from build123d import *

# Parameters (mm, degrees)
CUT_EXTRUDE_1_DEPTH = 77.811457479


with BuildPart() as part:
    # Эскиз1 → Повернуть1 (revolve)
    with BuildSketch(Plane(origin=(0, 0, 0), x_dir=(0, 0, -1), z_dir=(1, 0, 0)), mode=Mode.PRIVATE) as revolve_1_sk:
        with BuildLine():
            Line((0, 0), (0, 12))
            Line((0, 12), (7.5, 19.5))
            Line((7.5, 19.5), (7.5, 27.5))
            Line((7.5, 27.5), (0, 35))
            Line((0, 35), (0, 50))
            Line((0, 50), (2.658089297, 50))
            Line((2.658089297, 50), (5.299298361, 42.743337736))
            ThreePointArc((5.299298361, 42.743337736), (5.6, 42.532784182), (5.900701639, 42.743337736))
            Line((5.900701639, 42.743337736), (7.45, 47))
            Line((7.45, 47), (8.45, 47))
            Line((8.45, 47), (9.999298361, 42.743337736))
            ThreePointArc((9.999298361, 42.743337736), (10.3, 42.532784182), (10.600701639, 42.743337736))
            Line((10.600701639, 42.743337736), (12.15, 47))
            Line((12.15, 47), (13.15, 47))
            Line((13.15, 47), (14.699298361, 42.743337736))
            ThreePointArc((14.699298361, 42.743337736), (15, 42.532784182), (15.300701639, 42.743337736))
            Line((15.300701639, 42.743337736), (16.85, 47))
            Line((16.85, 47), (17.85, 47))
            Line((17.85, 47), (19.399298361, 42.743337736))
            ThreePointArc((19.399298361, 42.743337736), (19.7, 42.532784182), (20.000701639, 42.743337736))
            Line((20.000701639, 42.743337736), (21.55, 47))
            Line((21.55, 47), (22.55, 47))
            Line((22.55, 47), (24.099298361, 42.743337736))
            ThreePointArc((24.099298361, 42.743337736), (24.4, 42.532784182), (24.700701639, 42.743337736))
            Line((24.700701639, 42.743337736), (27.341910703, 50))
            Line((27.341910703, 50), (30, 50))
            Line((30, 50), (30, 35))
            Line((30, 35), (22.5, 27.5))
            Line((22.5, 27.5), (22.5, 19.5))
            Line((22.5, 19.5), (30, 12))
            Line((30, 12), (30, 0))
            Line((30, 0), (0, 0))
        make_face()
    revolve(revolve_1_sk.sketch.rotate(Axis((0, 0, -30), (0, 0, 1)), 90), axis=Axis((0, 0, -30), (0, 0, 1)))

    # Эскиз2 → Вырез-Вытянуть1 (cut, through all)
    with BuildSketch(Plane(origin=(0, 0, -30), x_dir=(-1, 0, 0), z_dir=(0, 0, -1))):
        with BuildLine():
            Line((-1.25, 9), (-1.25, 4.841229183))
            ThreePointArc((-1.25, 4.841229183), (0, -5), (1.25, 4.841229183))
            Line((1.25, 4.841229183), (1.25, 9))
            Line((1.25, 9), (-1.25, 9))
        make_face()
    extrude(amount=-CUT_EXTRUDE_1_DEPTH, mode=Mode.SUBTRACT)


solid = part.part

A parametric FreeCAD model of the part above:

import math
import FreeCAD as App
import Part
import Sketcher
from FreeCAD import Vector
Q = App.Units.Quantity

doc = App.newDocument("Part")
body = doc.addObject("PartDesign::Body", "Body")

sketch1 = doc.addObject("Sketcher::SketchObject", "Sketch")
body.addObject(sketch1)
sketch1.AttachmentSupport = (doc.YZ_Plane, [""])
sketch1.MapMode = "FlatFace"
sketch1.addGeometry([
    Part.LineSegment(Vector(12, 0, 0), Vector(0, 0, 0)),
    Part.LineSegment(Vector(0, 0, 0), Vector(0, -30, 0)),
    Part.LineSegment(Vector(0, -30, 0), Vector(12, -30, 0)),
    Part.LineSegment(Vector(12, -30, 0), Vector(19.5, -22.5, 0)),
    Part.LineSegment(Vector(19.5, -22.5, 0), Vector(27.5, -22.5, 0)),
    Part.LineSegment(Vector(27.5, -22.5, 0), Vector(35, -30, 0)),
    Part.LineSegment(Vector(35, -30, 0), Vector(50, -30, 0)),
    Part.LineSegment(Vector(50, -30, 0), Vector(50, -27.34, 0)),
    Part.LineSegment(Vector(50, -27.34, 0), Vector(42.74, -24.7, 0)),
    Part.ArcOfCircle(Part.Circle(Vector(42.85, -24.4, 0), Vector(0, 0, 1), 0.32), math.radians(110), math.radians(250)),
    Part.LineSegment(Vector(42.74, -24.1, 0), Vector(47, -22.55, 0)),
    Part.LineSegment(Vector(47, -22.55, 0), Vector(47, -21.55, 0)),
    Part.LineSegment(Vector(47, -21.55, 0), Vector(42.74, -20, 0)),
    Part.ArcOfCircle(Part.Circle(Vector(42.85, -19.7, 0), Vector(0, 0, 1), 0.32), math.radians(110), math.radians(250)),
    Part.LineSegment(Vector(42.74, -19.4, 0), Vector(47, -17.85, 0)),
    Part.LineSegment(Vector(47, -17.85, 0), Vector(47, -16.85, 0)),
    Part.LineSegment(Vector(47, -16.85, 0), Vector(42.74, -15.3, 0)),
    Part.ArcOfCircle(Part.Circle(Vector(42.85, -15, 0), Vector(0, 0, 1), 0.32), math.radians(110), math.radians(250)),
    Part.LineSegment(Vector(42.74, -14.7, 0), Vector(47, -13.15, 0)),
    Part.LineSegment(Vector(47, -13.15, 0), Vector(47, -12.15, 0)),
    Part.LineSegment(Vector(47, -12.15, 0), Vector(42.74, -10.6, 0)),
    Part.ArcOfCircle(Part.Circle(Vector(42.85, -10.3, 0), Vector(0, 0, 1), 0.32), math.radians(110), math.radians(250)),
    Part.LineSegment(Vector(42.74, -10, 0), Vector(47, -8.45, 0)),
    Part.LineSegment(Vector(47, -8.45, 0), Vector(47, -7.45, 0)),
    Part.LineSegment(Vector(47, -7.45, 0), Vector(42.74, -5.9, 0)),
    Part.ArcOfCircle(Part.Circle(Vector(42.85, -5.6, 0), Vector(0, 0, 1), 0.32), math.radians(110), math.radians(250)),
    Part.LineSegment(Vector(42.74, -5.3, 0), Vector(50, -2.66, 0)),
    Part.LineSegment(Vector(50, -2.66, 0), Vector(50, 0, 0)),
    Part.LineSegment(Vector(50, 0, 0), Vector(35, 0, 0)),
    Part.LineSegment(Vector(35, 0, 0), Vector(27.5, -7.5, 0)),
    Part.LineSegment(Vector(27.5, -7.5, 0), Vector(19.5, -7.5, 0)),
    Part.LineSegment(Vector(19.5, -7.5, 0), Vector(12, 0, 0)),
], False)
sketch1.addConstraint([
    Sketcher.Constraint("Coincident", 0, 2, 1, 1),
    Sketcher.Constraint("Coincident", 1, 2, 2, 1),
    Sketcher.Constraint("Coincident", 2, 2, 3, 1),
    Sketcher.Constraint("Coincident", 3, 2, 4, 1),
    Sketcher.Constraint("Coincident", 4, 2, 5, 1),
    Sketcher.Constraint("Coincident", 5, 2, 6, 1),
    Sketcher.Constraint("Coincident", 6, 2, 7, 1),
    Sketcher.Constraint("Coincident", 7, 2, 8, 1),
    Sketcher.Constraint("Tangent", 8, 2, 9, 2),
    Sketcher.Constraint("Tangent", 9, 1, 10, 1),
    Sketcher.Constraint("Coincident", 10, 2, 11, 1),
    Sketcher.Constraint("Coincident", 11, 2, 12, 1),
    Sketcher.Constraint("Tangent", 12, 2, 13, 2),
    Sketcher.Constraint("Tangent", 13, 1, 14, 1),
    Sketcher.Constraint("Coincident", 14, 2, 15, 1),
    Sketcher.Constraint("Coincident", 15, 2, 16, 1),
    Sketcher.Constraint("Tangent", 16, 2, 17, 2),
    Sketcher.Constraint("Tangent", 17, 1, 18, 1),
    Sketcher.Constraint("Coincident", 18, 2, 19, 1),
    Sketcher.Constraint("Coincident", 19, 2, 20, 1),
    Sketcher.Constraint("Tangent", 20, 2, 21, 2),
    Sketcher.Constraint("Tangent", 21, 1, 22, 1),
    Sketcher.Constraint("Coincident", 22, 2, 23, 1),
    Sketcher.Constraint("Coincident", 23, 2, 24, 1),
    Sketcher.Constraint("Tangent", 24, 2, 25, 2),
    Sketcher.Constraint("Tangent", 25, 1, 26, 1),
    Sketcher.Constraint("Coincident", 26, 2, 27, 1),
    Sketcher.Constraint("Coincident", 27, 2, 28, 1),
    Sketcher.Constraint("Coincident", 28, 2, 29, 1),
    Sketcher.Constraint("Coincident", 29, 2, 30, 1),
    Sketcher.Constraint("Coincident", 30, 2, 31, 1),
    Sketcher.Constraint("Coincident", 31, 2, 0, 1),
    Sketcher.Constraint("Horizontal", 0),
    Sketcher.Constraint("Vertical", 1),
    Sketcher.Constraint("Horizontal", 2),
    Sketcher.Constraint("Horizontal", 4),
    Sketcher.Constraint("Horizontal", 6),
    Sketcher.Constraint("Vertical", 7),
    Sketcher.Constraint("Vertical", 11),
    Sketcher.Constraint("Vertical", 15),
    Sketcher.Constraint("Vertical", 19),
    Sketcher.Constraint("Vertical", 23),
    Sketcher.Constraint("Vertical", 27),
    Sketcher.Constraint("Horizontal", 28),
    Sketcher.Constraint("Horizontal", 30),
    Sketcher.Constraint("Coincident", 0, 2, -1, 1),
    Sketcher.Constraint("Equal", 9, 13),
    Sketcher.Constraint("Equal", 13, 17),
    Sketcher.Constraint("Equal", 17, 21),
    Sketcher.Constraint("Equal", 21, 25),
    Sketcher.Constraint("PointOnObject", 27, 2, -1),
    Sketcher.Constraint("Perpendicular", 3, 5),
    Sketcher.Constraint("Parallel", 8, 12),
    Sketcher.Constraint("Parallel", 10, 14),
    Sketcher.Constraint("Parallel", 12, 16),
    Sketcher.Constraint("Parallel", 14, 18),
    Sketcher.Constraint("Parallel", 16, 20),
    Sketcher.Constraint("Parallel", 18, 22),
    Sketcher.Constraint("Parallel", 20, 24),
    Sketcher.Constraint("Parallel", 22, 26),
    Sketcher.Constraint("Perpendicular", 5, 29),
    Sketcher.Constraint("Perpendicular", 29, 31),
    Sketcher.Constraint("Horizontal", 2, 2, 5, 2),
    Sketcher.Constraint("Vertical", 9, 3, 13, 3),
    Sketcher.Constraint("Vertical", 13, 3, 17, 3),
    Sketcher.Constraint("Vertical", 17, 3, 21, 3),
    Sketcher.Constraint("Vertical", 21, 3, 25, 3),
    Sketcher.Constraint("Vertical", 8, 2, 9, 1),
    Sketcher.Constraint("Vertical", 11, 2, 14, 2),
    Sketcher.Constraint("Vertical", 15, 2, 18, 2),
    Sketcher.Constraint("Vertical", 19, 2, 22, 2),
    Sketcher.Constraint("Vertical", 7, 2, 26, 2),
    Sketcher.Constraint("Vertical", 5, 2, 28, 2),
    Sketcher.Constraint("Vertical", 4, 2, 29, 2),
    Sketcher.Constraint("Vertical", 3, 2, 30, 2),
    Sketcher.Constraint("Vertical", 2, 2, 31, 2),
    Sketcher.Constraint("Equal", 11, 15),
    Sketcher.Constraint("Equal", 15, 19),
    Sketcher.Constraint("Equal", 19, 23),
    Sketcher.Constraint("Equal", 7, 27),
    Sketcher.Constraint("DistanceX", 0, 2, 0, 1, Q("12 mm")),
    Sketcher.Constraint("DistanceX", 4, 1, 4, 2, Q("8 mm")),
    Sketcher.Constraint("DistanceX", 6, 1, 6, 2, Q("15 mm")),
    Sketcher.Constraint("DistanceY", 1, 2, 1, 1, Q("30 mm")),
    Sketcher.Constraint("DistanceY", 11, 1, 11, 2, Q("1 mm")),
    Sketcher.Constraint("Angle", 8, Q("160 deg")),
    Sketcher.Constraint("Radius", 9, Q("0.32 mm")),
    Sketcher.Constraint("DistanceX", -1, 1, 5, 2, Q("35 mm")),
    Sketcher.Constraint("DistanceX", -1, 1, 10, 2, Q("47 mm")),
    Sketcher.Constraint("DistanceY", 9, 3, -1, 1, Q("24.4 mm")),
])
revolution = doc.addObject("PartDesign::Revolution", "Revolution")
body.addObject(revolution)
revolution.Profile = sketch1
revolution.ReferenceAxis = (sketch1, ["V_Axis"])
revolution.Angle = 360

sketch2 = doc.addObject("Sketcher::SketchObject", "Sketch001")
body.addObject(sketch2)
sketch2.AttachmentSupport = (doc.XY_Plane, [""])
sketch2.MapMode = "FlatFace"
sketch2.AttachmentOffset = App.Placement(Vector(0, 0, -30), App.Rotation())
sketch2.addGeometry([
    Part.LineSegment(Vector(1.2, 9, 0), Vector(1.2, 4.8, 0)),
    Part.ArcOfCircle(Part.Circle(Vector(0, 0, 0), Vector(0, 0, 1), 5), math.radians(104), math.radians(436)),
    Part.LineSegment(Vector(-1.2, 4.8, 0), Vector(-1.2, 9, 0)),
    Part.LineSegment(Vector(-1.2, 9, 0), Vector(1.2, 9, 0)),
], False)
sketch2.addConstraint([
    Sketcher.Constraint("Coincident", 0, 2, 1, 2),
    Sketcher.Constraint("Coincident", 1, 1, 2, 1),
    Sketcher.Constraint("Coincident", 2, 2, 3, 1),
    Sketcher.Constraint("Coincident", 3, 2, 0, 1),
    Sketcher.Constraint("Vertical", 0),
    Sketcher.Constraint("Vertical", 2),
    Sketcher.Constraint("Horizontal", 3),
    Sketcher.Constraint("Coincident", 1, 3, -1, 1),
    Sketcher.Constraint("Horizontal", 0, 2, 1, 1),
    Sketcher.Constraint("Radius", 1, Q("5 mm")),
    Sketcher.Constraint("DistanceX", 3, 1, 3, 2, Q("2.5 mm")),
    Sketcher.Constraint("DistanceY", -1, 1, 2, 2, Q("9 mm")),
])
pocket1 = doc.addObject("PartDesign::Pocket", "Pocket")
body.addObject(pocket1)
pocket1.Profile = sketch2
pocket1.Type = "ThroughAll"
pocket1.Reversed = True

doc.recompute()
